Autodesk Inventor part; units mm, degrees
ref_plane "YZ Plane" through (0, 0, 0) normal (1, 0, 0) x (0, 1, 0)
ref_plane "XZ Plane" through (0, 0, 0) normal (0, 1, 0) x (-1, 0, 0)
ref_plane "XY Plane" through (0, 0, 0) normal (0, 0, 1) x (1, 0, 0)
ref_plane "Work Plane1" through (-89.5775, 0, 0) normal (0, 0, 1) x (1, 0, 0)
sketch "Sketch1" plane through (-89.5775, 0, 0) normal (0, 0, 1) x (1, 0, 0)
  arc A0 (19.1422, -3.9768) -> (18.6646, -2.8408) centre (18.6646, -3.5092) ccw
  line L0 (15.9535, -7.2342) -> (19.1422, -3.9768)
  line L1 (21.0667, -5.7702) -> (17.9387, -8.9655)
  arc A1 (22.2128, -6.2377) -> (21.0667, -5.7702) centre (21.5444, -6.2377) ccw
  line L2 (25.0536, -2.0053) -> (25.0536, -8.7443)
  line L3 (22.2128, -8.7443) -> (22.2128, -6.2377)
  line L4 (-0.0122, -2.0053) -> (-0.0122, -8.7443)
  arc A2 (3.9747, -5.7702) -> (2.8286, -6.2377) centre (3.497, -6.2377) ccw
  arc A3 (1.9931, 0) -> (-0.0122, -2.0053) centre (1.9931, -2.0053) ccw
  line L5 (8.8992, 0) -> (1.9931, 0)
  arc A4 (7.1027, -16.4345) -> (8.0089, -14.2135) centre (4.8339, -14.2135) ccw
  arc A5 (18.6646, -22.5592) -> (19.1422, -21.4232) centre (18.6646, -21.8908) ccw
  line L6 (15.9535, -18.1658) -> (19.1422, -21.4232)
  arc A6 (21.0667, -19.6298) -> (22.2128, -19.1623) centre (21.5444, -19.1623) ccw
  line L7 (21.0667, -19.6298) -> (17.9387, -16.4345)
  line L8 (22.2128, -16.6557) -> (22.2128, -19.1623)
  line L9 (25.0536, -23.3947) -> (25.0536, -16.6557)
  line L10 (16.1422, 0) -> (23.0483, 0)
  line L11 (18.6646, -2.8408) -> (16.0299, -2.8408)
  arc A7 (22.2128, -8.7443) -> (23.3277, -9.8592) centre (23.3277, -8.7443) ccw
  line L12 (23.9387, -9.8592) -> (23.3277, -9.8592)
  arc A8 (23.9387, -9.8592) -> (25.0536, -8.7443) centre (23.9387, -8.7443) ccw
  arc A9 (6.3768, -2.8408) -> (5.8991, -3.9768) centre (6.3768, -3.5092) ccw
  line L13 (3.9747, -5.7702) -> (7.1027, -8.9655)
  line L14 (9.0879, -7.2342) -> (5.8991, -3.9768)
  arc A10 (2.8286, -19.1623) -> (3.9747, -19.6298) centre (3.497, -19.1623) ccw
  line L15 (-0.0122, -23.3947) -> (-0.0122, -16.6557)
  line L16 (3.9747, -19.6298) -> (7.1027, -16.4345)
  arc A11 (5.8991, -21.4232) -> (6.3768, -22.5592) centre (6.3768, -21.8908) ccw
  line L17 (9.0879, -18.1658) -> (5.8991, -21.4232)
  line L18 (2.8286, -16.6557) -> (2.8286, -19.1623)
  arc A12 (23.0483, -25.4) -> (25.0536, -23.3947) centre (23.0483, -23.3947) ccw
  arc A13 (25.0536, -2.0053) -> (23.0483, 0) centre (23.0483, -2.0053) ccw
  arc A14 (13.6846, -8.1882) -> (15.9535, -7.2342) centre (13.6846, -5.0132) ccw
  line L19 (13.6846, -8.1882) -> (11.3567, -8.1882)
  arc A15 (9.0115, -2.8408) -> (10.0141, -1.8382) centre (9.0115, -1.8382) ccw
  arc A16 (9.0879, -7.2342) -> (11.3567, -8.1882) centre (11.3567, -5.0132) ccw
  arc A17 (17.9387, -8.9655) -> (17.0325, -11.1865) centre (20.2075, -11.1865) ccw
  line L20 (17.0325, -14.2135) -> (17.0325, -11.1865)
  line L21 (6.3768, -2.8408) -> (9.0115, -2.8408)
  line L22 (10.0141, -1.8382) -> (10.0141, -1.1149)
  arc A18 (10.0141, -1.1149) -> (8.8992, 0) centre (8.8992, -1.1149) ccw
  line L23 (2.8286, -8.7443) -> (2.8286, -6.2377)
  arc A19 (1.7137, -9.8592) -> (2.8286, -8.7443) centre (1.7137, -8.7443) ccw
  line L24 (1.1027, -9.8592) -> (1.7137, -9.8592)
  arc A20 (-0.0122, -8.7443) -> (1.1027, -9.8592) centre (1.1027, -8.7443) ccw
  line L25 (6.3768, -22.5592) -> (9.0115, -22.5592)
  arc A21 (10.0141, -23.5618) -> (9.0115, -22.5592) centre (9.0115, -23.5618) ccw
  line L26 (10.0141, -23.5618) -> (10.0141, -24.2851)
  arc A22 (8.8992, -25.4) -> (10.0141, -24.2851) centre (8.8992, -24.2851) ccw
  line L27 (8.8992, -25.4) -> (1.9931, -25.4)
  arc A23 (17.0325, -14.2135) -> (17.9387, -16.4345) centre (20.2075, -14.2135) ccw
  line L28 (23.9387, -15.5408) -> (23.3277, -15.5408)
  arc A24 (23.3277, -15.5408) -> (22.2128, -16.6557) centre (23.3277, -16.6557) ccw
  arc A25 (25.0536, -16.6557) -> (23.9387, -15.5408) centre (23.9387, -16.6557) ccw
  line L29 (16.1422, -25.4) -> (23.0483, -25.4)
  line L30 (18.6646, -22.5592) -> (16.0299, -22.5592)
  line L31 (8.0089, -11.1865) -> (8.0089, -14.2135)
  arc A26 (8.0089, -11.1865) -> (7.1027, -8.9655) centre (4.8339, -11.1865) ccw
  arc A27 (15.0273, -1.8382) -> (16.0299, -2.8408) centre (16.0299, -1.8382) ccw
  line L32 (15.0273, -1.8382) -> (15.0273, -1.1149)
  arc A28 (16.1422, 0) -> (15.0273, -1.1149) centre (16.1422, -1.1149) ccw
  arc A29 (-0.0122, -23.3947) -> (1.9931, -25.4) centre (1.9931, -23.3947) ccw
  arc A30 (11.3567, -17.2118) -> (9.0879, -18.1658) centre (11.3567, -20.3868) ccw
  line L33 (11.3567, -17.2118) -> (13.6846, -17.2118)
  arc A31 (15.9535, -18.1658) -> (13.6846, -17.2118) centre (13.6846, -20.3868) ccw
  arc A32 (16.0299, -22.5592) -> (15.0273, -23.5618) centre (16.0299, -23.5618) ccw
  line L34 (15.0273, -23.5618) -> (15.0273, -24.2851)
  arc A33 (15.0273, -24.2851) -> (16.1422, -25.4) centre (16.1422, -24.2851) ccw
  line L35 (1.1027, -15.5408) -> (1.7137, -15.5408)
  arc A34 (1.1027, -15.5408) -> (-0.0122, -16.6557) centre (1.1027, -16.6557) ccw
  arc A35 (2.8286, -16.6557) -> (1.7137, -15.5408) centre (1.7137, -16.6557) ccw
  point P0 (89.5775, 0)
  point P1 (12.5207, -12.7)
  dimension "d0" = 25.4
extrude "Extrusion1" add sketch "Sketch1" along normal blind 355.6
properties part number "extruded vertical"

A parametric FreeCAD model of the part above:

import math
import FreeCAD as App
import Part
import Sketcher
from FreeCAD import Vector
Q = App.Units.Quantity

doc = App.newDocument("Part")
body = doc.addObject("PartDesign::Body", "Body")

# Sketch on XY plane
sketch1 = body.newObject("Sketcher::SketchObject", "Sketch")
sketch1.AttachmentSupport = (doc.getObject("XY_Plane"), [""])
sketch1.MapMode = "FlatFace"
sketch1.addGeometry([
    Part.ArcOfCircle(Part.Circle(Vector(-70.9129, -3.5092, 0), Vector(0, 0, 1), 0.668395), math.radians(-44.393846), math.radians(90)),  # 0
    Part.LineSegment(Vector(-70.4353, -3.9768, 0), Vector(-73.624, -7.2342, 0)),  # 1
    Part.ArcOfCircle(Part.Circle(Vector(-75.8929, -5.0132, 0), Vector(0, 0, 1), 3.175), math.radians(-90), math.radians(-44.38877)),  # 2
    Part.LineSegment(Vector(-75.8929, -8.1882, 0), Vector(-78.2208, -8.1882, 0)),  # 3
    Part.ArcOfCircle(Part.Circle(Vector(-78.2208, -5.0132, 0), Vector(0, 0, 1), 3.174948), math.radians(-135.609968), math.radians(-90)),  # 4
    Part.LineSegment(Vector(-80.4896, -7.2342, 0), Vector(-83.6784, -3.9768, 0)),  # 5
    Part.ArcOfCircle(Part.Circle(Vector(-83.2007, -3.5092, 0), Vector(0, 0, 1), 0.6684), math.radians(90), math.radians(224.38785)),  # 6
    Part.LineSegment(Vector(-83.2007, -2.8408, 0), Vector(-80.566, -2.8408, 0)),  # 7
    Part.ArcOfCircle(Part.Circle(Vector(-80.566, -1.8382, 0), Vector(0, 0, 1), 1.0026), math.radians(-90), math.radians(0)),  # 8
    Part.LineSegment(Vector(-79.5634, -1.8382, 0), Vector(-79.5634, -1.1149, 0)),  # 9
    Part.ArcOfCircle(Part.Circle(Vector(-80.6783, -1.1149, 0), Vector(0, 0, 1), 1.1149), math.radians(0), math.radians(90)),  # 10
    Part.LineSegment(Vector(-80.6783, 0, 0), Vector(-87.5844, 0, 0)),  # 11
    Part.ArcOfCircle(Part.Circle(Vector(-87.5844, -2.0053, 0), Vector(0, 0, 1), 2.0053), math.radians(90), math.radians(180)),  # 12
    Part.LineSegment(Vector(-89.5897, -2.0053, 0), Vector(-89.5897, -8.7443, 0)),  # 13
    Part.ArcOfCircle(Part.Circle(Vector(-88.4748, -8.7443, 0), Vector(0, 0, 1), 1.1149), math.radians(180), math.radians(270)),  # 14
    Part.LineSegment(Vector(-88.4748, -9.8592, 0), Vector(-87.8638, -9.8592, 0)),  # 15
    Part.ArcOfCircle(Part.Circle(Vector(-87.8638, -8.7443, 0), Vector(0, 0, 1), 1.1149), math.radians(-90), math.radians(0)),  # 16
    Part.LineSegment(Vector(-86.7489, -8.7443, 0), Vector(-86.7489, -6.2377, 0)),  # 17
    Part.ArcOfCircle(Part.Circle(Vector(-86.0805, -6.2377, 0), Vector(0, 0, 1), 0.668396), math.radians(44.381724), math.radians(180)),  # 18
    Part.LineSegment(Vector(-85.6028, -5.7702, 0), Vector(-82.4748, -8.9655, 0)),  # 19
    Part.ArcOfCircle(Part.Circle(Vector(-84.7436, -11.1865, 0), Vector(0, 0, 1), 3.175), math.radians(0), math.radians(44.390032)),  # 20
    Part.LineSegment(Vector(-81.5686, -11.1865, 0), Vector(-81.5686, -14.2135, 0)),  # 21
    Part.ArcOfCircle(Part.Circle(Vector(-84.7436, -14.2135, 0), Vector(0, 0, 1), 3.174948), math.radians(-44.390032), math.radians(0)),  # 22
    Part.LineSegment(Vector(-82.4748, -16.4345, 0), Vector(-85.6028, -19.6298, 0)),  # 23
    Part.ArcOfCircle(Part.Circle(Vector(-86.0805, -19.1623, 0), Vector(0, 0, 1), 0.6684), math.radians(180), math.radians(315.618276)),  # 24
    Part.LineSegment(Vector(-86.7489, -19.1623, 0), Vector(-86.7489, -16.6557, 0)),  # 25
    Part.ArcOfCircle(Part.Circle(Vector(-87.8638, -16.6557, 0), Vector(0, 0, 1), 1.1149), math.radians(0), math.radians(90)),  # 26
    Part.LineSegment(Vector(-87.8638, -15.5408, 0), Vector(-88.4748, -15.5408, 0)),  # 27
    Part.ArcOfCircle(Part.Circle(Vector(-88.4748, -16.6557, 0), Vector(0, 0, 1), 1.1149), math.radians(90), math.radians(180)),  # 28
    Part.LineSegment(Vector(-89.5897, -16.6557, 0), Vector(-89.5897, -23.3947, 0)),  # 29
    Part.ArcOfCircle(Part.Circle(Vector(-87.5844, -23.3947, 0), Vector(0, 0, 1), 2.0053), math.radians(180), math.radians(270)),  # 30
    Part.LineSegment(Vector(-87.5844, -25.4, 0), Vector(-80.6783, -25.4, 0)),  # 31
    Part.ArcOfCircle(Part.Circle(Vector(-80.6783, -24.2851, 0), Vector(0, 0, 1), 1.1149), math.radians(-90), math.radians(0)),  # 32
    Part.LineSegment(Vector(-79.5634, -24.2851, 0), Vector(-79.5634, -23.5618, 0)),  # 33
    Part.ArcOfCircle(Part.Circle(Vector(-80.566, -23.5618, 0), Vector(0, 0, 1), 1.0026), math.radians(0), math.radians(90)),  # 34
    Part.LineSegment(Vector(-80.566, -22.5592, 0), Vector(-83.2007, -22.5592, 0)),  # 35
    Part.ArcOfCircle(Part.Circle(Vector(-83.2007, -21.8908, 0), Vector(0, 0, 1), 0.668466), math.radians(135.61215), math.radians(270)),  # 36
    Part.LineSegment(Vector(-83.6784, -21.4232, 0), Vector(-80.4896, -18.1658, 0)),  # 37
    Part.ArcOfCircle(Part.Circle(Vector(-78.2208, -20.3868, 0), Vector(0, 0, 1), 3.175), math.radians(90), math.radians(135.609968)),  # 38
    Part.LineSegment(Vector(-78.2208, -17.2118, 0), Vector(-75.8929, -17.2118, 0)),  # 39
    Part.ArcOfCircle(Part.Circle(Vector(-75.8929, -20.3868, 0), Vector(0, 0, 1), 3.175019), math.radians(44.38877), math.radians(90)),  # 40
    Part.LineSegment(Vector(-73.624, -18.1658, 0), Vector(-70.4353, -21.4232, 0)),  # 41
    Part.ArcOfCircle(Part.Circle(Vector(-70.9129, -21.8908, 0), Vector(0, 0, 1), 0.6684), math.radians(-90), math.radians(44.393846)),  # 42
    Part.LineSegment(Vector(-70.9129, -22.5592, 0), Vector(-73.5476, -22.5592, 0)),  # 43
    Part.ArcOfCircle(Part.Circle(Vector(-73.5476, -23.5618, 0), Vector(0, 0, 1), 1.0026), math.radians(90), math.radians(180)),  # 44
    Part.LineSegment(Vector(-74.5502, -23.5618, 0), Vector(-74.5502, -24.2851, 0)),  # 45
    Part.ArcOfCircle(Part.Circle(Vector(-73.4353, -24.2851, 0), Vector(0, 0, 1), 1.1149), math.radians(180), math.radians(270)),  # 46
    Part.LineSegment(Vector(-73.4353, -25.4, 0), Vector(-66.5292, -25.4, 0)),  # 47
    Part.ArcOfCircle(Part.Circle(Vector(-66.5292, -23.3947, 0), Vector(0, 0, 1), 2.0053), math.radians(-90), math.radians(0)),  # 48
    Part.LineSegment(Vector(-64.5239, -23.3947, 0), Vector(-64.5239, -16.6557, 0)),  # 49
    Part.ArcOfCircle(Part.Circle(Vector(-65.6388, -16.6557, 0), Vector(0, 0, 1), 1.1149), math.radians(0), math.radians(90)),  # 50
    Part.LineSegment(Vector(-65.6388, -15.5408, 0), Vector(-66.2498, -15.5408, 0)),  # 51
    Part.ArcOfCircle(Part.Circle(Vector(-66.2498, -16.6557, 0), Vector(0, 0, 1), 1.1149), math.radians(90), math.radians(180)),  # 52
    Part.LineSegment(Vector(-67.3647, -16.6557, 0), Vector(-67.3647, -19.1623, 0)),  # 53
    Part.ArcOfCircle(Part.Circle(Vector(-68.0331, -19.1623, 0), Vector(0, 0, 1), 0.668396), math.radians(-135.618276), math.radians(0)),  # 54
    Part.LineSegment(Vector(-68.5108, -19.6298, 0), Vector(-71.6388, -16.4345, 0)),  # 55
    Part.ArcOfCircle(Part.Circle(Vector(-69.37, -14.2135, 0), Vector(0, 0, 1), 3.175), math.radians(180), math.radians(224.390032)),  # 56
    Part.LineSegment(Vector(-72.545, -14.2135, 0), Vector(-72.545, -11.1865, 0)),  # 57
    Part.ArcOfCircle(Part.Circle(Vector(-69.37, -11.1865, 0), Vector(0, 0, 1), 3.174948), math.radians(135.609968), math.radians(180)),  # 58
    Part.LineSegment(Vector(-71.6388, -8.9655, 0), Vector(-68.5108, -5.7702, 0)),  # 59
    Part.ArcOfCircle(Part.Circle(Vector(-68.0331, -6.2377, 0), Vector(0, 0, 1), 0.6684), math.radians(0), math.radians(135.618276)),  # 60
    Part.LineSegment(Vector(-67.3647, -6.2377, 0), Vector(-67.3647, -8.7443, 0)),  # 61
    Part.ArcOfCircle(Part.Circle(Vector(-66.2498, -8.7443, 0), Vector(0, 0, 1), 1.1149), math.radians(180), math.radians(270)),  # 62
    Part.LineSegment(Vector(-66.2498, -9.8592, 0), Vector(-65.6388, -9.8592, 0)),  # 63
    Part.ArcOfCircle(Part.Circle(Vector(-65.6388, -8.7443, 0), Vector(0, 0, 1), 1.1149), math.radians(-90), math.radians(0)),  # 64
    Part.LineSegment(Vector(-64.5239, -8.7443, 0), Vector(-64.5239, -2.0053, 0)),  # 65
    Part.ArcOfCircle(Part.Circle(Vector(-66.5292, -2.0053, 0), Vector(0, 0, 1), 2.0053), math.radians(0), math.radians(90)),  # 66
    Part.LineSegment(Vector(-66.5292, 0, 0), Vector(-73.4353, 0, 0)),  # 67
    Part.ArcOfCircle(Part.Circle(Vector(-73.4353, -1.1149, 0), Vector(0, 0, 1), 1.1149), math.radians(90), math.radians(180)),  # 68
    Part.LineSegment(Vector(-74.5502, -1.1149, 0), Vector(-74.5502, -1.8382, 0)),  # 69
    Part.ArcOfCircle(Part.Circle(Vector(-73.5476, -1.8382, 0), Vector(0, 0, 1), 1.0026), math.radians(180), math.radians(270)),  # 70
    Part.LineSegment(Vector(-73.5476, -2.8408, 0), Vector(-70.9129, -2.8408, 0)),  # 71
], False)
sketch1.addConstraint([
    Sketcher.Constraint("Tangent", 0, 1, 1, 1),
    Sketcher.Constraint("Tangent", 1, 2, 2, 2),
    Sketcher.Constraint("Tangent", 2, 1, 3, 1),
    Sketcher.Constraint("Tangent", 3, 2, 4, 2),
    Sketcher.Constraint("Tangent", 4, 1, 5, 1),
    Sketcher.Constraint("Tangent", 5, 2, 6, 2),
    Sketcher.Constraint("Tangent", 6, 1, 7, 1),
    Sketcher.Constraint("Tangent", 7, 2, 8, 1),
    Sketcher.Constraint("Tangent", 8, 2, 9, 1),
    Sketcher.Constraint("Tangent", 9, 2, 10, 1),
    Sketcher.Constraint("Tangent", 10, 2, 11, 1),
    Sketcher.Constraint("Tangent", 11, 2, 12, 1),
    Sketcher.Constraint("Tangent", 12, 2, 13, 1),
    Sketcher.Constraint("Tangent", 13, 2, 14, 1),
    Sketcher.Constraint("Tangent", 14, 2, 15, 1),
    Sketcher.Constraint("Tangent", 15, 2, 16, 1),
    Sketcher.Constraint("Tangent", 16, 2, 17, 1),
    Sketcher.Constraint("Tangent", 17, 2, 18, 2),
    Sketcher.Constraint("Tangent", 18, 1, 19, 1),
    Sketcher.Constraint("Tangent", 19, 2, 20, 2),
    Sketcher.Constraint("Tangent", 20, 1, 21, 1),
    Sketcher.Constraint("Tangent", 21, 2, 22, 2),
    Sketcher.Constraint("Tangent", 22, 1, 23, 1),
    Sketcher.Constraint("Tangent", 23, 2, 24, 2),
    Sketcher.Constraint("Tangent", 24, 1, 25, 1),
    Sketcher.Constraint("Tangent", 25, 2, 26, 1),
    Sketcher.Constraint("Tangent", 26, 2, 27, 1),
    Sketcher.Constraint("Tangent", 27, 2, 28, 1),
    Sketcher.Constraint("Tangent", 28, 2, 29, 1),
    Sketcher.Constraint("Tangent", 29, 2, 30, 1),
    Sketcher.Constraint("Tangent", 30, 2, 31, 1),
    Sketcher.Constraint("Tangent", 31, 2, 32, 1),
    Sketcher.Constraint("Tangent", 32, 2, 33, 1),
    Sketcher.Constraint("Tangent", 33, 2, 34, 1),
    Sketcher.Constraint("Tangent", 34, 2, 35, 1),
    Sketcher.Constraint("Tangent", 35, 2, 36, 2),
    Sketcher.Constraint("Tangent", 36, 1, 37, 1),
    Sketcher.Constraint("Tangent", 37, 2, 38, 2),
    Sketcher.Constraint("Tangent", 38, 1, 39, 1),
    Sketcher.Constraint("Tangent", 39, 2, 40, 2),
    Sketcher.Constraint("Tangent", 40, 1, 41, 1),
    Sketcher.Constraint("Tangent", 41, 2, 42, 2),
    Sketcher.Constraint("Tangent", 42, 1, 43, 1),
    Sketcher.Constraint("Tangent", 43, 2, 44, 1),
    Sketcher.Constraint("Tangent", 44, 2, 45, 1),
    Sketcher.Constraint("Tangent", 45, 2, 46, 1),
    Sketcher.Constraint("Tangent", 46, 2, 47, 1),
    Sketcher.Constraint("Tangent", 47, 2, 48, 1),
    Sketcher.Constraint("Tangent", 48, 2, 49, 1),
    Sketcher.Constraint("Tangent", 49, 2, 50, 1),
    Sketcher.Constraint("Tangent", 50, 2, 51, 1),
    Sketcher.Constraint("Tangent", 51, 2, 52, 1),
    Sketcher.Constraint("Tangent", 52, 2, 53, 1),
    Sketcher.Constraint("Tangent", 53, 2, 54, 2),
    Sketcher.Constraint("Tangent", 54, 1, 55, 1),
    Sketcher.Constraint("Tangent", 55, 2, 56, 2),
    Sketcher.Constraint("Tangent", 56, 1, 57, 1),
    Sketcher.Constraint("Tangent", 57, 2, 58, 2),
    Sketcher.Constraint("Tangent", 58, 1, 59, 1),
    Sketcher.Constraint("Tangent", 59, 2, 60, 2),
    Sketcher.Constraint("Tangent", 60, 1, 61, 1),
    Sketcher.Constraint("Tangent", 61, 2, 62, 1),
    Sketcher.Constraint("Tangent", 62, 2, 63, 1),
    Sketcher.Constraint("Tangent", 63, 2, 64, 1),
    Sketcher.Constraint("Tangent", 64, 2, 65, 1),
    Sketcher.Constraint("Tangent", 65, 2, 66, 1),
    Sketcher.Constraint("Tangent", 66, 2, 67, 1),
    Sketcher.Constraint("Tangent", 67, 2, 68, 1),
    Sketcher.Constraint("Tangent", 68, 2, 69, 1),
    Sketcher.Constraint("Tangent", 69, 2, 70, 1),
    Sketcher.Constraint("Tangent", 70, 2, 71, 1),
    Sketcher.Constraint("Tangent", 71, 2, 0, 2),
    Sketcher.Constraint("Horizontal", 3),
    Sketcher.Constraint("Horizontal", 7),
    Sketcher.Constraint("Vertical", 9),
    Sketcher.Constraint("Horizontal", 11),
    Sketcher.Constraint("Vertical", 13),
    Sketcher.Constraint("Horizontal", 15),
    Sketcher.Constraint("Vertical", 17),
    Sketcher.Constraint("Vertical", 21),
    Sketcher.Constraint("Vertical", 25),
    Sketcher.Constraint("Horizontal", 27),
    Sketcher.Constraint("Vertical", 29),
    Sketcher.Constraint("Horizontal", 31),
    Sketcher.Constraint("Vertical", 33),
    Sketcher.Constraint("Horizontal", 35),
    Sketcher.Constraint("Horizontal", 39),
    Sketcher.Constraint("Horizontal", 43),
    Sketcher.Constraint("Vertical", 45),
    Sketcher.Constraint("Horizontal", 47),
    Sketcher.Constraint("Vertical", 49),
    Sketcher.Constraint("Horizontal", 51),
    Sketcher.Constraint("Vertical", 53),
    Sketcher.Constraint("Vertical", 57),
    Sketcher.Constraint("Vertical", 61),
    Sketcher.Constraint("Horizontal", 63),
    Sketcher.Constraint("Vertical", 65),
    Sketcher.Constraint("Horizontal", 67),
    Sketcher.Constraint("Vertical", 69),
    Sketcher.Constraint("Horizontal", 71),
    Sketcher.Constraint("Equal", 2, 4),
    Sketcher.Constraint("Equal", 0, 6),
    Sketcher.Constraint("Equal", 10, 14),
    Sketcher.Constraint("Equal", 14, 16),
    Sketcher.Constraint("Equal", 6, 18),
    Sketcher.Constraint("Equal", 4, 20),
    Sketcher.Constraint("Equal", 20, 22),
    Sketcher.Constraint("Equal", 18, 24),
    Sketcher.Constraint("Equal", 16, 26),
    Sketcher.Constraint("Equal", 26, 28),
    Sketcher.Constraint("Equal", 12, 30),
    Sketcher.Constraint("Equal", 28, 32),
    Sketcher.Constraint("Equal", 8, 34),
    Sketcher.Constraint("Equal", 24, 36),
    Sketcher.Constraint("Equal", 22, 38),
    Sketcher.Constraint("Equal", 38, 40),
    Sketcher.Constraint("Equal", 36, 42),
    Sketcher.Constraint("Equal", 34, 44),
    Sketcher.Constraint("Equal", 32, 46),
    Sketcher.Constraint("Equal", 30, 48),
    Sketcher.Constraint("Equal", 46, 50),
    Sketcher.Constraint("Equal", 50, 52),
    Sketcher.Constraint("Equal", 42, 54),
    Sketcher.Constraint("Equal", 40, 56),
    Sketcher.Constraint("Equal", 56, 58),
    Sketcher.Constraint("Equal", 54, 60),
    Sketcher.Constraint("Equal", 52, 62),
    Sketcher.Constraint("Equal", 62, 64),
    Sketcher.Constraint("Equal", 48, 66),
    Sketcher.Constraint("Equal", 64, 68),
    Sketcher.Constraint("Equal", 44, 70),
    Sketcher.Constraint("PointOnObject", 10, 2, -1),
    Sketcher.Constraint("PointOnObject", 66, 2, -1),
    Sketcher.Constraint("Parallel", 5, 19),
    Sketcher.Constraint("Parallel", 1, 23),
    Sketcher.Constraint("Parallel", 23, 37),
    Sketcher.Constraint("Parallel", 19, 41),
    Sketcher.Constraint("Parallel", 41, 55),
    Sketcher.Constraint("Parallel", 37, 59),
    Sketcher.Constraint("Horizontal", 0, 3, 6, 3),
    Sketcher.Constraint("Horizontal", 36, 3, 42, 3),
    Sketcher.Constraint("Horizontal", 32, 3, 46, 3),
    Sketcher.Constraint("Horizontal", 28, 3, 50, 3),
    Sketcher.Constraint("Horizontal", 24, 3, 54, 3),
    Sketcher.Constraint("Horizontal", 22, 3, 56, 3),
    Sketcher.Constraint("Horizontal", 20, 3, 58, 3),
    Sketcher.Constraint("Horizontal", 18, 3, 60, 3),
    Sketcher.Constraint("Horizontal", 16, 3, 62, 3),
    Sketcher.Constraint("Horizontal", 1, 2, 4, 1),
    Sketcher.Constraint("Vertical", 18, 3, 24, 3),
    Sketcher.Constraint("Vertical", 14, 3, 28, 3),
    Sketcher.Constraint("Vertical", 10, 3, 32, 3),
    Sketcher.Constraint("Vertical", 6, 3, 36, 3),
    Sketcher.Constraint("Vertical", 4, 3, 38, 3),
    Sketcher.Constraint("Vertical", 2, 3, 40, 3),
    Sketcher.Constraint("Vertical", 50, 3, 64, 3),
    Sketcher.Constraint("Vertical", 46, 3, 68, 3),
    Sketcher.Constraint("Equal", 35, 43),
    Sketcher.Constraint("Equal", 31, 47),
    Sketcher.Constraint("Equal", 27, 51),
    Sketcher.Constraint("Equal", 17, 25),
    Sketcher.Constraint("Equal", 13, 29),
    Sketcher.Constraint("Equal", 9, 33),
    Sketcher.Constraint("DistanceY", 30, 2, -1, 1, Q("1 in")),
    Sketcher.Constraint("Radius", 2, Q("0.125 in")),
    Sketcher.Constraint("Radius", 10, Q("0.0439 in")),
    Sketcher.Constraint("Angle", 1, Q("-134.3894 deg")),
    Sketcher.Constraint("Radius", 0, Q("0.6684 mm")),
    Sketcher.Constraint("Radius", 8, Q("1.0026 mm")),
    Sketcher.Constraint("Radius", 12, Q("2.0053 mm")),
    Sketcher.Constraint("DistanceX", 11, 2, 11, 1, Q("0.2719 in")),
    Sketcher.Constraint("DistanceX", 18, 3, -1, 1, Q("3.389 in")),
    Sketcher.Constraint("DistanceX", 3, 2, 3, 1, Q("2.328 mm")),
    Sketcher.Constraint("DistanceX", 7, 1, 7, 2, Q("2.6347 mm")),
    Sketcher.Constraint("DistanceX", 15, 1, 15, 2, Q("0.611 mm")),
    Sketcher.Constraint("DistanceY", 9, 1, 9, 2, Q("0.7233 mm")),
    Sketcher.Constraint("DistanceY", 13, 2, 13, 1, Q("6.739 mm")),
    Sketcher.Constraint("DistanceY", 17, 1, 17, 2, Q("2.5066 mm")),
    Sketcher.Constraint("DistanceY", 21, 2, 21, 1, Q("3.027 mm")),
    Sketcher.Constraint("DistanceX", 2, 3, -1, 1, Q("2.9879 in")),
])
pad1 = body.newObject("PartDesign::Pad", "Pad")
pad1.Profile = sketch1
pad1.Length = Q("14 in")

doc.recompute()
